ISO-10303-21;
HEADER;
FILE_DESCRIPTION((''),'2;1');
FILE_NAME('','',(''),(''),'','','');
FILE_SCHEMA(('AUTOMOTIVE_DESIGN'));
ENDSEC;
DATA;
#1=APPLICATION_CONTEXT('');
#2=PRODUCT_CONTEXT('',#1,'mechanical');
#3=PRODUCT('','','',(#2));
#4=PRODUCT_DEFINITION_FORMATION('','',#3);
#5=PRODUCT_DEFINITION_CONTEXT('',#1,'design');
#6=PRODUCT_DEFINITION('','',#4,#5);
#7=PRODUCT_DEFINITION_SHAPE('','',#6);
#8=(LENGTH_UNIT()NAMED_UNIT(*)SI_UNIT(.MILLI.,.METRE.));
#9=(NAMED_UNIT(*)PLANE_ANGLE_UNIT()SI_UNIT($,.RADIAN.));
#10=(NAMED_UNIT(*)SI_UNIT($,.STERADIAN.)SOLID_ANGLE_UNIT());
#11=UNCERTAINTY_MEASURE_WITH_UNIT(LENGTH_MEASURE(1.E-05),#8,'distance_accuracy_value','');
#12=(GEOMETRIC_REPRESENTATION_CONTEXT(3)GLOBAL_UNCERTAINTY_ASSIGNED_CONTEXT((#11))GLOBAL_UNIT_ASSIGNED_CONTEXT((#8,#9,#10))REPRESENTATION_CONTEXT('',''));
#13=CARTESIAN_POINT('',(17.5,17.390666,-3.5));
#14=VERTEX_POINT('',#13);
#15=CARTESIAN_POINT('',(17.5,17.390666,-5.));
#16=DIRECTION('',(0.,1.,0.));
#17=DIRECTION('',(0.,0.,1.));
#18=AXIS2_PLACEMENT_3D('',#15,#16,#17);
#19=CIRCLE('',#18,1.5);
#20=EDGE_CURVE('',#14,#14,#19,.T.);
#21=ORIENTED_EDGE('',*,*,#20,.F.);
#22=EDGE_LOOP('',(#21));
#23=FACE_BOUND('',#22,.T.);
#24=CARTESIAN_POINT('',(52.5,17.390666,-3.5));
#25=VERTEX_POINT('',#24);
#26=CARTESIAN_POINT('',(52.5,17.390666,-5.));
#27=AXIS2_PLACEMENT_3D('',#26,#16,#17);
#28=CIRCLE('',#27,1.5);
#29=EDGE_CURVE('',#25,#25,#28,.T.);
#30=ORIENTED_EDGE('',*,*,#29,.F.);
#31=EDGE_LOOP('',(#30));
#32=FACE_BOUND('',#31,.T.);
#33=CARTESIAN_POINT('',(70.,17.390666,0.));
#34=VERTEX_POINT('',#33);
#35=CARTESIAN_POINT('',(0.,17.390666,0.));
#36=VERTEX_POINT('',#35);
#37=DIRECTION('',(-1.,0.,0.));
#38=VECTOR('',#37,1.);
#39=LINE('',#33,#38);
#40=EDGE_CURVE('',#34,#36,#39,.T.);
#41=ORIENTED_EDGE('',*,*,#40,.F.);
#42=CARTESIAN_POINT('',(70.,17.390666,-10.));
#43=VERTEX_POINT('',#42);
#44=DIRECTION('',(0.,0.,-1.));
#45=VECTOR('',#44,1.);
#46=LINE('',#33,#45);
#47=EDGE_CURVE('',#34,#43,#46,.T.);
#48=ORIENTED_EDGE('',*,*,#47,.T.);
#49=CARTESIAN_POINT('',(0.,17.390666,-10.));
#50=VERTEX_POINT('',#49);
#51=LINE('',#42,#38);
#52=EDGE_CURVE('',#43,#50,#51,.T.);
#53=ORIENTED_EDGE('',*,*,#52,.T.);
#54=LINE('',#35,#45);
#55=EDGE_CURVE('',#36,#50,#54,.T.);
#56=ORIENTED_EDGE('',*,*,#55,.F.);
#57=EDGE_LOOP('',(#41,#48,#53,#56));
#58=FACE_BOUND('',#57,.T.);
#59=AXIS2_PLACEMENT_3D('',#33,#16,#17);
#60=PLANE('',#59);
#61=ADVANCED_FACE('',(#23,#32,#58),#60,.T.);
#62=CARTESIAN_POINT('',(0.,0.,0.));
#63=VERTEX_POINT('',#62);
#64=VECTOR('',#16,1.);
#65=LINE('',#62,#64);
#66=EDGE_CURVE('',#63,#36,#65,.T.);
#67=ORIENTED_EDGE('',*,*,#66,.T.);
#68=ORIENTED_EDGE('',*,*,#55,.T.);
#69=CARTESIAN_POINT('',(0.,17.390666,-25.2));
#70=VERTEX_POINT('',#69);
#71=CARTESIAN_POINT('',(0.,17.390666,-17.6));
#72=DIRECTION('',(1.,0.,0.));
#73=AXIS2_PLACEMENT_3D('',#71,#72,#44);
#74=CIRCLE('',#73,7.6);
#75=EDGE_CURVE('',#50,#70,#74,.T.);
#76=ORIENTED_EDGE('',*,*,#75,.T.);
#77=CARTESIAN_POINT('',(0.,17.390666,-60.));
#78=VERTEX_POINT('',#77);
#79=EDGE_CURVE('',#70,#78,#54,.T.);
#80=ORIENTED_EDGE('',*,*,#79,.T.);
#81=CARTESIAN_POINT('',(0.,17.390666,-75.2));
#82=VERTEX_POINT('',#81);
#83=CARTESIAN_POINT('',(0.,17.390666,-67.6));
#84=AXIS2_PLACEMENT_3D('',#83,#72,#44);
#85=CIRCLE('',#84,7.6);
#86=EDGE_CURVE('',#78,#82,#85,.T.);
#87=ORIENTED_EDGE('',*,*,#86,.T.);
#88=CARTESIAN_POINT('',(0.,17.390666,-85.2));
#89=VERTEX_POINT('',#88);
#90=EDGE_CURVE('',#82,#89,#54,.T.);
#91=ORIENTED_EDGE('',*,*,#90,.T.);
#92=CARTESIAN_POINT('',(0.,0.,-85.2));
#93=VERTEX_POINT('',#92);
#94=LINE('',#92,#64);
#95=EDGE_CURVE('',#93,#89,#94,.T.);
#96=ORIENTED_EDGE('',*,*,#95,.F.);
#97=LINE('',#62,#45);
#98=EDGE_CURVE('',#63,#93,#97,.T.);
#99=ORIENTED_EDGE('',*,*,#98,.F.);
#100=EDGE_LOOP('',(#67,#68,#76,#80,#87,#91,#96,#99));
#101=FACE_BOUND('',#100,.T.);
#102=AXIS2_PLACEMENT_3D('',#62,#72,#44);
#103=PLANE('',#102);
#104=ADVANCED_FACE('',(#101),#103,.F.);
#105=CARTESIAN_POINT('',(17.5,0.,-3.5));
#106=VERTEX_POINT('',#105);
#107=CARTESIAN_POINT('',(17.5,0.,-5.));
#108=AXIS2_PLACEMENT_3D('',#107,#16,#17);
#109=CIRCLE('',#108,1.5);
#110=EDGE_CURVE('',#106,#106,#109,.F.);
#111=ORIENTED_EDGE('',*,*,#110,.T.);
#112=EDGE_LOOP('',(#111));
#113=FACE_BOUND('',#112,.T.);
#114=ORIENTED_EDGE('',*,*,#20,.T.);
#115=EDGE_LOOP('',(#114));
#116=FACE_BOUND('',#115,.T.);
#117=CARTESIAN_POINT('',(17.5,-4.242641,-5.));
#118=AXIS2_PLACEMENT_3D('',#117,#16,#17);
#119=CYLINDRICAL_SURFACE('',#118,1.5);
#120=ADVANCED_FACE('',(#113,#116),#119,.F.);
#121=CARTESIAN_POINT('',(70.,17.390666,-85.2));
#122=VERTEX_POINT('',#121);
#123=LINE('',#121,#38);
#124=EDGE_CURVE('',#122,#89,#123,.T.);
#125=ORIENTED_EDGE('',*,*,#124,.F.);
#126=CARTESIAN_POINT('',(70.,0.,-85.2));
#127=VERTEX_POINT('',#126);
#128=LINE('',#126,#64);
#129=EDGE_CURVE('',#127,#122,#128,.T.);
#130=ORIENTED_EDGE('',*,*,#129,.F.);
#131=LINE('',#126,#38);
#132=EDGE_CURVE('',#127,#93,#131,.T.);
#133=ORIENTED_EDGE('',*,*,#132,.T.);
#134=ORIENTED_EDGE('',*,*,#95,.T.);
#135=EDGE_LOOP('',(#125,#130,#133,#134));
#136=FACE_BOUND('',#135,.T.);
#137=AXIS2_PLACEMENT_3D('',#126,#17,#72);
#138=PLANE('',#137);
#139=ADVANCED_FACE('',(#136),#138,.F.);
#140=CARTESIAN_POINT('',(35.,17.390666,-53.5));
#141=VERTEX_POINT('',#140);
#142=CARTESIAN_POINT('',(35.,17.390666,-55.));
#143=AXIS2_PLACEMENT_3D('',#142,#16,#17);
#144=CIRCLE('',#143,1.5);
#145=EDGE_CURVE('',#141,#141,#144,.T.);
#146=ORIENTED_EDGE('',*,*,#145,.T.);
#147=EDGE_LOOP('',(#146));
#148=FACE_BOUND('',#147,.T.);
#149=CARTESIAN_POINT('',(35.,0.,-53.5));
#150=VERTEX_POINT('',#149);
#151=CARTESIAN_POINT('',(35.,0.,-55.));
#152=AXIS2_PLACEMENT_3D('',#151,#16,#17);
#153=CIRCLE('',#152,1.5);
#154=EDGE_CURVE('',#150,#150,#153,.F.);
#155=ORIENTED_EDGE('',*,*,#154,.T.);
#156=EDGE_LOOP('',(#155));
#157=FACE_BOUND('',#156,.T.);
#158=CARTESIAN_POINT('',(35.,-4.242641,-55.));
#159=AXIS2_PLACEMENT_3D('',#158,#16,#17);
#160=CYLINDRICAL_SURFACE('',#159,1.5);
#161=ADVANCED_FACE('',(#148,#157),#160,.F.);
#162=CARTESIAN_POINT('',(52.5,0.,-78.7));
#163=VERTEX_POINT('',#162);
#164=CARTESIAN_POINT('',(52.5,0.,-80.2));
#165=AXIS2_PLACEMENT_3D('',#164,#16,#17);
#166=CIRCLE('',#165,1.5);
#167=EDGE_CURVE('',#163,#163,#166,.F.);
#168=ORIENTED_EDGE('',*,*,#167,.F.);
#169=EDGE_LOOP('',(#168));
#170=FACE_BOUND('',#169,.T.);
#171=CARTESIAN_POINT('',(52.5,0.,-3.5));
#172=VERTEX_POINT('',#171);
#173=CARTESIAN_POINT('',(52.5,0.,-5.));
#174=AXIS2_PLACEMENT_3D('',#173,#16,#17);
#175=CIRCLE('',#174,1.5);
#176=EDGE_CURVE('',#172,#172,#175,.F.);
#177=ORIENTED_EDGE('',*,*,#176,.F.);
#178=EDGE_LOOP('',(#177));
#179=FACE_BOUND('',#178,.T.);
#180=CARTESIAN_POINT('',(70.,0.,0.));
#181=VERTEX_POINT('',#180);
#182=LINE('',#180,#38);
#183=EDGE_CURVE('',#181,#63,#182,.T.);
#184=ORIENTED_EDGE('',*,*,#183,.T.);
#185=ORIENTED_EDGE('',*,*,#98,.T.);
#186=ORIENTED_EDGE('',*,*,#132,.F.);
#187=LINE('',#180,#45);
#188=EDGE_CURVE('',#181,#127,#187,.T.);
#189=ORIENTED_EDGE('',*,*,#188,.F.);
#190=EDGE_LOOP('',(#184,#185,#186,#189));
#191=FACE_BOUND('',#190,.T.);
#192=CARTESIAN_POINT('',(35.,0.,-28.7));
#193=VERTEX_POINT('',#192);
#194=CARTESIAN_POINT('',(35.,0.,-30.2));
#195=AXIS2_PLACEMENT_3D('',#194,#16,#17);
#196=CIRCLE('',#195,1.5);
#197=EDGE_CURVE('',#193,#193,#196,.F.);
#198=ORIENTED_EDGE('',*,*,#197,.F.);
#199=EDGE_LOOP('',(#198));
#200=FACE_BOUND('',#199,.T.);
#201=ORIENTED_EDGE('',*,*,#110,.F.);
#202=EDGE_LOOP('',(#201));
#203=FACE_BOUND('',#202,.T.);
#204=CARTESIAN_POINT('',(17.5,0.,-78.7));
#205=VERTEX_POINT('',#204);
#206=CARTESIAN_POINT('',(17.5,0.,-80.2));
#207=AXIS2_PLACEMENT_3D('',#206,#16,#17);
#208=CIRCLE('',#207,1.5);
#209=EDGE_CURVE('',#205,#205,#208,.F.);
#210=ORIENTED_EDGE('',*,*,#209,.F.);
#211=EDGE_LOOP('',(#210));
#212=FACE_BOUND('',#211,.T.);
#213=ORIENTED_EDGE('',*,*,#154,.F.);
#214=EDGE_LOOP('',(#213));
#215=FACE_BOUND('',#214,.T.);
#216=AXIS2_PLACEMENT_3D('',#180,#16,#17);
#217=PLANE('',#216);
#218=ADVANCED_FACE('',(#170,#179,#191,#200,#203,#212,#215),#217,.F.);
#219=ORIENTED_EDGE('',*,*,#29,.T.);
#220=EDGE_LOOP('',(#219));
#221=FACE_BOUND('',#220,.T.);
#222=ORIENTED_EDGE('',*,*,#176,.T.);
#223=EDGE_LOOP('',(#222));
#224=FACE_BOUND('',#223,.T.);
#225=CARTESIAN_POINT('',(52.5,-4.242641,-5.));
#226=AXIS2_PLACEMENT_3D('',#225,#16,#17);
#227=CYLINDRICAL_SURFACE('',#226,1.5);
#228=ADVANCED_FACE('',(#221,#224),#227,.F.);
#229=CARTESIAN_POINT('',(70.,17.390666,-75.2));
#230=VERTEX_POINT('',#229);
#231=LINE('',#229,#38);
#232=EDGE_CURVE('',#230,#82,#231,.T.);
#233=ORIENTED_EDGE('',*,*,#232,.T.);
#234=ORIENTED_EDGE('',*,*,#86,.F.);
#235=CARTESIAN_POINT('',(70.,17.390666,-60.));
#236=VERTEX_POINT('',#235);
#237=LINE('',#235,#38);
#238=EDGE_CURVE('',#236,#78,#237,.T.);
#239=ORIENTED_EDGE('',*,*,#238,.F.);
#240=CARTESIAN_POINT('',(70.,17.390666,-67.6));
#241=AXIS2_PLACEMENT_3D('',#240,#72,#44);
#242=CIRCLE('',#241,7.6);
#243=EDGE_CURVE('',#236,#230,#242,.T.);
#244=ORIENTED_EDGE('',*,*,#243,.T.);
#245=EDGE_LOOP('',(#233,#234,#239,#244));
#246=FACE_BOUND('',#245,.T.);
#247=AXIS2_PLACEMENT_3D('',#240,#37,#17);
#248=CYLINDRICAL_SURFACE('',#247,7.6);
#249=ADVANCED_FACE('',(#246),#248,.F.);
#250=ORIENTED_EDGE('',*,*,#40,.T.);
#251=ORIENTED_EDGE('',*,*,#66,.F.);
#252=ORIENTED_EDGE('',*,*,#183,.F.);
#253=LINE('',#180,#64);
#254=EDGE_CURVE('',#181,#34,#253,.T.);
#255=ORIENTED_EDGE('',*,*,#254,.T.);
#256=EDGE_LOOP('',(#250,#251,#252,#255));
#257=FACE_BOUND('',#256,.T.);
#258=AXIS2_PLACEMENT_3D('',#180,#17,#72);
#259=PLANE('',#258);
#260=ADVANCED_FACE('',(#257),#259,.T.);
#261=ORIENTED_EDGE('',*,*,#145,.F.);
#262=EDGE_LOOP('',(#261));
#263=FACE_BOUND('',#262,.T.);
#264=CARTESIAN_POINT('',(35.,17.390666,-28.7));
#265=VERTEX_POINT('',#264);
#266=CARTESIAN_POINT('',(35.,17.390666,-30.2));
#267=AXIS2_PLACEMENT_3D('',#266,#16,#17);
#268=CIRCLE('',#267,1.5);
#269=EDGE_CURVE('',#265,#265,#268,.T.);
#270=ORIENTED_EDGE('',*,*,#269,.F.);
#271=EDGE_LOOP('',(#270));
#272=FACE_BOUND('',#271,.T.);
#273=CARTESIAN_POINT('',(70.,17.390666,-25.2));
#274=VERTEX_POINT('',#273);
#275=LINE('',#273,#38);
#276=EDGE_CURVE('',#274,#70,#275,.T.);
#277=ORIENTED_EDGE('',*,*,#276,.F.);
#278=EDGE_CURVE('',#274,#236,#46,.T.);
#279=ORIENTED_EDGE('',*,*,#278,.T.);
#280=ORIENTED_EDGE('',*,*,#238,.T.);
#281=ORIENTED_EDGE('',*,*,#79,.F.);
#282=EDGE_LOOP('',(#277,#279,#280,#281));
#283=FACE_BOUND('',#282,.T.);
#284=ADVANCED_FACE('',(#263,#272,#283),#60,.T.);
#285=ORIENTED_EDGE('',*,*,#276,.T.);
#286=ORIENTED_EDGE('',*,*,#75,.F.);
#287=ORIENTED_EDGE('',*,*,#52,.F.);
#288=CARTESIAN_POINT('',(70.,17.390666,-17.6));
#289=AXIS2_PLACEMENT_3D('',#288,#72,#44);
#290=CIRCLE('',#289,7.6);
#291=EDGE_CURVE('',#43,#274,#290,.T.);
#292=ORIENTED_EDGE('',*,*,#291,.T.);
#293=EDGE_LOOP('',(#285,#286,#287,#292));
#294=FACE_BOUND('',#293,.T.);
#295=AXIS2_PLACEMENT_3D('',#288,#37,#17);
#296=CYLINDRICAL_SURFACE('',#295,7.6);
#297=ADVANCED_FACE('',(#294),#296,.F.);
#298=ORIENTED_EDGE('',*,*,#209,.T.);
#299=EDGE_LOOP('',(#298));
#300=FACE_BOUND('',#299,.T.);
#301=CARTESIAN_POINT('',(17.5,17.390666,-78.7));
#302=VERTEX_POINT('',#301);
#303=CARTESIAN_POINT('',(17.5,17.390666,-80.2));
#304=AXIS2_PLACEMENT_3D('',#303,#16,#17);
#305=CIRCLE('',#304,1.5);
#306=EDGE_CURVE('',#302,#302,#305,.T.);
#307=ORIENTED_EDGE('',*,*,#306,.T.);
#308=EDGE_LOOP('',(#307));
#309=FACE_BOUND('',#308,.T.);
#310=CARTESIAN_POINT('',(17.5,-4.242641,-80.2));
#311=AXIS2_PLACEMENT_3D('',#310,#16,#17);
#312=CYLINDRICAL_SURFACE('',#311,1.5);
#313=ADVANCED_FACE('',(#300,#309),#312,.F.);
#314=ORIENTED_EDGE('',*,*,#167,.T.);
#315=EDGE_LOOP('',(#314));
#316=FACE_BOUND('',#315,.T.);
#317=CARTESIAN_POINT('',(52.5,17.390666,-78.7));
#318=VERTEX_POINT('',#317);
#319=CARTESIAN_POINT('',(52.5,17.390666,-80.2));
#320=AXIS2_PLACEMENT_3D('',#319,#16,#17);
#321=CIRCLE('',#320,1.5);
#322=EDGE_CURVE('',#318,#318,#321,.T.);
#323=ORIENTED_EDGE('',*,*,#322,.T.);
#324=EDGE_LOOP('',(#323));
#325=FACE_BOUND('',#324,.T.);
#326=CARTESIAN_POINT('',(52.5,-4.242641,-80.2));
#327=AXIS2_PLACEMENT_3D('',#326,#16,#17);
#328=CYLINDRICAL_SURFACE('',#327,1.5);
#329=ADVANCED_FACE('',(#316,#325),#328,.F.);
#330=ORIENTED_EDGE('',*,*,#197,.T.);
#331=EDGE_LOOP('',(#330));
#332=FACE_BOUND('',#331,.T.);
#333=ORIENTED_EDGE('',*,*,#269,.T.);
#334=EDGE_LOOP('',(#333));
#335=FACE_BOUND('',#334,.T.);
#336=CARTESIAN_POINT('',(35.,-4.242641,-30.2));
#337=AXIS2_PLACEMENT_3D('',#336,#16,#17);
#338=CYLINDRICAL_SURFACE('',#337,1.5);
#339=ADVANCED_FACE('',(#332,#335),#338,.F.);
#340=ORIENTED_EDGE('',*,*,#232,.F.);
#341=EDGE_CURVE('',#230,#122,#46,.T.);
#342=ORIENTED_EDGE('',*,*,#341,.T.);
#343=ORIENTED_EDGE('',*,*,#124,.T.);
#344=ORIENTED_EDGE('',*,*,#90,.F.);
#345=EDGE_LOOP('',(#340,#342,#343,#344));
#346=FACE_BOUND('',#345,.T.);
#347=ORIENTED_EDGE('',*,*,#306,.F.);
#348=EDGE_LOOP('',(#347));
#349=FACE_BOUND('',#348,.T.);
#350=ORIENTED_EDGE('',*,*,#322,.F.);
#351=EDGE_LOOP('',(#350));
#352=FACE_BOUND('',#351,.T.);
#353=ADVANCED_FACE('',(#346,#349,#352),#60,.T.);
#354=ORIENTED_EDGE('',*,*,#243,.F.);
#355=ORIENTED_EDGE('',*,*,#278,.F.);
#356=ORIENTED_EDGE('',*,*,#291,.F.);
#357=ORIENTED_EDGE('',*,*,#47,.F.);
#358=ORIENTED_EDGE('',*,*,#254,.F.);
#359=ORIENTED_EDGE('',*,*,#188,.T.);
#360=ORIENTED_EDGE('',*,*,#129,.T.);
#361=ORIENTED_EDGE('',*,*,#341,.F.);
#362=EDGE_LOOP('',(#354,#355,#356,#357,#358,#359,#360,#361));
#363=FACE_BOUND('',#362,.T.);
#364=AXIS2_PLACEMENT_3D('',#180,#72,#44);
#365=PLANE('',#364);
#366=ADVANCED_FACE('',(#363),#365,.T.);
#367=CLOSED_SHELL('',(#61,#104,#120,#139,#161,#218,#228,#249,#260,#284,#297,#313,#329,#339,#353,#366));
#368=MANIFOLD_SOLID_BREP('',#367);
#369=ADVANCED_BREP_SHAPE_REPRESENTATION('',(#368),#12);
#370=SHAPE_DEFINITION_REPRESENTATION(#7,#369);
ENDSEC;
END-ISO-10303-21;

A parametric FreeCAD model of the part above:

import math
import FreeCAD as App
import Part
import Sketcher

doc = App.newDocument("Part")
body = doc.addObject("PartDesign::Body", "Body")

sketch1 = body.newObject("Sketcher::SketchObject", "Sketch")
sketch1.AttachmentSupport = (doc.getObject("YZ_Plane"), [""])
sketch1.MapMode = "FlatFace"
sketch1.addGeometry([
    Part.ArcOfCircle(Part.Circle(App.Vector(17.390666, -67.6, 0), App.Vector(0, 0, 1), 7.6), math.radians(90), math.radians(270)),
    Part.LineSegment(App.Vector(17.390666, -60, 0), App.Vector(17.390666, -25.2, 0)),
    Part.ArcOfCircle(Part.Circle(App.Vector(17.390666, -17.6, 0), App.Vector(0, 0, 1), 7.6), math.radians(90), math.radians(270)),
    Part.LineSegment(App.Vector(17.390666, -10, 0), App.Vector(17.390666, 0, 0)),
    Part.LineSegment(App.Vector(17.390666, 0, 0), App.Vector(0, 0, 0)),
    Part.LineSegment(App.Vector(0, 0, 0), App.Vector(0, -85.2, 0)),
    Part.LineSegment(App.Vector(0, -85.2, 0), App.Vector(17.390666, -85.2, 0)),
    Part.LineSegment(App.Vector(17.390666, -85.2, 0), App.Vector(17.390666, -75.2, 0)),
], False)
sketch1.addConstraint([
    Sketcher.Constraint("Coincident", 0, 1, 1, 1),
    Sketcher.Constraint("Coincident", 1, 2, 2, 2),
    Sketcher.Constraint("Coincident", 2, 1, 3, 1),
    Sketcher.Constraint("Coincident", 3, 2, 4, 1),
    Sketcher.Constraint("Coincident", 4, 2, 5, 1),
    Sketcher.Constraint("Coincident", 5, 2, 6, 1),
    Sketcher.Constraint("Coincident", 6, 2, 7, 1),
    Sketcher.Constraint("Coincident", 7, 2, 0, 2),
    Sketcher.Constraint("Vertical", 1),
    Sketcher.Constraint("Vertical", 3),
    Sketcher.Constraint("Horizontal", 4),
    Sketcher.Constraint("Vertical", 5),
    Sketcher.Constraint("Horizontal", 6),
    Sketcher.Constraint("Vertical", 7),
    Sketcher.Constraint("Coincident", 4, 2, -1, 1),
    Sketcher.Constraint("Equal", 0, 2),
    Sketcher.Constraint("Vertical", 0, 3, 2, 3),
    Sketcher.Constraint("Vertical", 2, 3, 0, 1),
    Sketcher.Constraint("Vertical", 1, 2, 2, 1),
    Sketcher.Constraint("Vertical", 3, 2, 6, 2),
    Sketcher.Constraint("Equal", 3, 7),
    Sketcher.Constraint("Radius", 0, 7.6),
    Sketcher.Constraint("DistanceY", 3, 1, 3, 2, 10.0),
    Sketcher.Constraint("DistanceY", 1, 1, 1, 2, 34.8),
    Sketcher.Constraint("DistanceX", 4, 2, 4, 1, 17.390666),
])
pad1 = body.newObject("PartDesign::Pad", "Pad")
pad1.Profile = sketch1
pad1.Length = 70

sketch2 = body.newObject("Sketcher::SketchObject", "Sketch001")
sketch2.AttachmentSupport = (doc.getObject("XZ_Plane"), [""])
sketch2.MapMode = "FlatFace"
sketch2.AttachmentOffset = App.Placement(App.Vector(0, 0, -17.390666), App.Rotation())
sketch2.addGeometry([
    Part.Circle(App.Vector(52.5, -5, 0), App.Vector(0, 0, 1), 1.5),
    Part.Circle(App.Vector(17.5, -5, 0), App.Vector(0, 0, 1), 1.5),
    Part.Circle(App.Vector(52.5, -80.2, 0), App.Vector(0, 0, 1), 1.5),
    Part.Circle(App.Vector(17.5, -80.2, 0), App.Vector(0, 0, 1), 1.5),
    Part.Circle(App.Vector(35, -30.2, 0), App.Vector(0, 0, 1), 1.5),
    Part.Circle(App.Vector(35, -55, 0), App.Vector(0, 0, 1), 1.5),
], False)
sketch2.addConstraint([
    Sketcher.Constraint("Equal", 0, 1),
    Sketcher.Constraint("Equal", 1, 2),
    Sketcher.Constraint("Equal", 2, 3),
    Sketcher.Constraint("Equal", 3, 4),
    Sketcher.Constraint("Equal", 4, 5),
    Sketcher.Constraint("Horizontal", 0, 3, 1, 3),
    Sketcher.Constraint("Horizontal", 2, 3, 3, 3),
    Sketcher.Constraint("Vertical", 0, 3, 2, 3),
    Sketcher.Constraint("Vertical", 1, 3, 3, 3),
    Sketcher.Constraint("Vertical", 4, 3, 5, 3),
    Sketcher.Constraint("Diameter", 0, 3.0),
    Sketcher.Constraint("DistanceY", 0, 3, -1, 1, 5.0),
    Sketcher.Constraint("DistanceX", -1, 1, 4, 3, 35.0),
    Sketcher.Constraint("DistanceY", 5, 3, -1, 1, 55.0),
    Sketcher.Constraint("DistanceX", 1, 3, 0, 3, 35.0),
    Sketcher.Constraint("DistanceY", 2, 3, 4, 3, 50.0),
    Sketcher.Constraint("DistanceX", -1, 1, 0, 3, 52.5),
    Sketcher.Constraint("DistanceY", 2, 3, -1, 1, 80.2),
])
pocket1 = body.newObject("PartDesign::Pocket", "Pocket")
pocket1.Profile = sketch2
pocket1.Length = 17.390666
pocket1.Reversed = True

doc.recompute()
